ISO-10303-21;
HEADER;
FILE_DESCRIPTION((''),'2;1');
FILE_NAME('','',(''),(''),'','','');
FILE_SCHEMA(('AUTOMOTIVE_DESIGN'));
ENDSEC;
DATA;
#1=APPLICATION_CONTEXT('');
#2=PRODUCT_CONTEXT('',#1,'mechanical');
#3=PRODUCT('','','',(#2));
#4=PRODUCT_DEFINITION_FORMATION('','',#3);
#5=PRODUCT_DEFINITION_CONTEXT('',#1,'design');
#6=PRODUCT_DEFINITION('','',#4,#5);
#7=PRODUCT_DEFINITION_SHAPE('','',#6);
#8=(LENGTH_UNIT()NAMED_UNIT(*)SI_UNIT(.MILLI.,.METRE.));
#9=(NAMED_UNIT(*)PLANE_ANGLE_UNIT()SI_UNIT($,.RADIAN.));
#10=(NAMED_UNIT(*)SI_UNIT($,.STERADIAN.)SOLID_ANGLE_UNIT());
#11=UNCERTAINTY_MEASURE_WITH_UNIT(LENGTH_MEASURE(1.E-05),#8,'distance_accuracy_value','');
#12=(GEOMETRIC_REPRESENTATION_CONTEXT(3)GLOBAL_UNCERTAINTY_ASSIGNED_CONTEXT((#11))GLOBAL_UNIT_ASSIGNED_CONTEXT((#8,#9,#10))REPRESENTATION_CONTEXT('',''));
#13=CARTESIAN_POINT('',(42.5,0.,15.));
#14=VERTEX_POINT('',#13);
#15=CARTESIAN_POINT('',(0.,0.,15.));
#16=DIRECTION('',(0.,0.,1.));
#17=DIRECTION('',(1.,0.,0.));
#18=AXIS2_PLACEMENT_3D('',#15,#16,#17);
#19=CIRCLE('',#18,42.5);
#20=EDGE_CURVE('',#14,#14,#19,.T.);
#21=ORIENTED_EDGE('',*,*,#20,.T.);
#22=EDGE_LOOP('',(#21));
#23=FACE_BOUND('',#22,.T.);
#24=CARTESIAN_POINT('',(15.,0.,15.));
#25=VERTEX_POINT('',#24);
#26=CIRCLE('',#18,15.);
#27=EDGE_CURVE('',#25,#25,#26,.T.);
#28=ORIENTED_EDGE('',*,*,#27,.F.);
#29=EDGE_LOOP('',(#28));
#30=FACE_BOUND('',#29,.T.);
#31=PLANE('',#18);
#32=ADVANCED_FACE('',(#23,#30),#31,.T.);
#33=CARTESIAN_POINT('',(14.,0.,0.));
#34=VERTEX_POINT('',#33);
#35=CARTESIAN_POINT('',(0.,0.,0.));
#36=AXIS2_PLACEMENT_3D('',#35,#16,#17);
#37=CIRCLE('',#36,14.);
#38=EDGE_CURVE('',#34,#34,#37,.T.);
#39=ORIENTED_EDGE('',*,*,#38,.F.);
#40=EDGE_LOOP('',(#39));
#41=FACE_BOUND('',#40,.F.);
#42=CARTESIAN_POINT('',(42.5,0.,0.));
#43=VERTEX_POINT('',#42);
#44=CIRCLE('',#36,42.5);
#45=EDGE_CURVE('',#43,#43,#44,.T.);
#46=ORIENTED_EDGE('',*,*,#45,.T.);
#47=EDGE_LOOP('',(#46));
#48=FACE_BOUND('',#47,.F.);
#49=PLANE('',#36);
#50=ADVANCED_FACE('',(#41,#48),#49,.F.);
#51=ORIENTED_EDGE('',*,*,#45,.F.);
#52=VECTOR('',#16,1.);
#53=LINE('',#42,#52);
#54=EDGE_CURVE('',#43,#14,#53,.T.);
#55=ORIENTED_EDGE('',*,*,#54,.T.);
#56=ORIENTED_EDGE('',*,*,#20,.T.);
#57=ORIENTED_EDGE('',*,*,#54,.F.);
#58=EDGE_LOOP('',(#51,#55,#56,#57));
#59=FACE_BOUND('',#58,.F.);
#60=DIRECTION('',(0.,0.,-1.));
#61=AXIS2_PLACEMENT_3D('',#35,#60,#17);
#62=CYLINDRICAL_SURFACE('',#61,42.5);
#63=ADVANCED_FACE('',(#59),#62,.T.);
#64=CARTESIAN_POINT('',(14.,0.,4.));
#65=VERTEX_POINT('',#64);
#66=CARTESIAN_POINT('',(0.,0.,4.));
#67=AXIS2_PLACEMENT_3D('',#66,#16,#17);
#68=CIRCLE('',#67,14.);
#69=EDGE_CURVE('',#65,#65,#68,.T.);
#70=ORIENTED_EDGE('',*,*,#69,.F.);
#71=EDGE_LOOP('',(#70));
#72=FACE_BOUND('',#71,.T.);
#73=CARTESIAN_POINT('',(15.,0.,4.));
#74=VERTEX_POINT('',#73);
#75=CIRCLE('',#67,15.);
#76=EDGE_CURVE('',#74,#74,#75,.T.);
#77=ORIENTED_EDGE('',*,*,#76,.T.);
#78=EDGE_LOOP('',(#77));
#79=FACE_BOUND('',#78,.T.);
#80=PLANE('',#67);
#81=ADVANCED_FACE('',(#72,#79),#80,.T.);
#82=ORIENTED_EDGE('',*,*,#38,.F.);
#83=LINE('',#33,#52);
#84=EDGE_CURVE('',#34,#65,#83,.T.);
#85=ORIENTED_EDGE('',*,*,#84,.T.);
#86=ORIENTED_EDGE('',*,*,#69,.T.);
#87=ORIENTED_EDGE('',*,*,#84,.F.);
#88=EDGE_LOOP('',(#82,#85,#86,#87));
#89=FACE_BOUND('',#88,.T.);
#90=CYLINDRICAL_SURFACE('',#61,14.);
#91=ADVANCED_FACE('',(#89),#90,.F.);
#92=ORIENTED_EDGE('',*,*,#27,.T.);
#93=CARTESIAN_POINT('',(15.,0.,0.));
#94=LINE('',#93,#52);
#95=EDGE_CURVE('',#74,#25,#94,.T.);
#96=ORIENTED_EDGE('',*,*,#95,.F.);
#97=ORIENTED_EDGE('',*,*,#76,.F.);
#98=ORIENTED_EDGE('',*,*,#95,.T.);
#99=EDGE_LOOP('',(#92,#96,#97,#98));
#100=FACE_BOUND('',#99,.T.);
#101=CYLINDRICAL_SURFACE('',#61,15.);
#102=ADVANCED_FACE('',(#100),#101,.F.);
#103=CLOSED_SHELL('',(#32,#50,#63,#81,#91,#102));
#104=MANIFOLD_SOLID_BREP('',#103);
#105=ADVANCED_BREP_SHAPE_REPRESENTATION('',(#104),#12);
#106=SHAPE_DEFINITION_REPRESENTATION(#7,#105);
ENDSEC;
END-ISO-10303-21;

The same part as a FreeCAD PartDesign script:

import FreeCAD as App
import Part
import Sketcher

V = App.Vector

doc = App.newDocument("Part")
params = doc.addObject("Spreadsheet::Sheet", "Params")
for row, (alias, value) in enumerate([
    ("sketch1_diameter", "85 mm"),
    ("sketch1_diameter2", "30 mm"),
    ("pad1_length", "15 mm"),
    ("sketch2_diameter", "30 mm"),
    ("sketch2_diameter2", "28 mm"),
    ("pad2_length", "4 mm"),
], start=1):
    params.set(f"A{row}", alias)
    params.set(f"B{row}", "=" + value)
    params.setAlias(f"B{row}", alias)

body = doc.addObject("PartDesign::Body", "Body")

sketch1 = body.newObject("Sketcher::SketchObject", "Sketch")
sketch1.AttachmentSupport = (doc.getObject("XY_Plane"), [""])
sketch1.MapMode = "FlatFace"
sketch1.addGeometry([
    Part.Circle(V(0, 0, 0), V(0, 0, 1), 42),
    Part.Circle(V(0, 0, 0), V(0, 0, 1), 15),
], False)
sketch1.addConstraint([
    Sketcher.Constraint("Coincident", 0, 3, -1, 1),
    Sketcher.Constraint("Coincident", 1, 3, -1, 1),
    Sketcher.Constraint("Diameter", 0, 85.0),
    Sketcher.Constraint("Diameter", 1, 30.0),
])
sketch1.setExpression("Constraints[2]", "Params.sketch1_diameter")
sketch1.setExpression("Constraints[3]", "Params.sketch1_diameter2")
pad1 = body.newObject("PartDesign::Pad", "Pad")
pad1.Profile = sketch1
pad1.setExpression("Length", "Params.pad1_length")

sketch2 = body.newObject("Sketcher::SketchObject", "Sketch001")
sketch2.AttachmentSupport = (doc.getObject("XY_Plane"), [""])
sketch2.MapMode = "FlatFace"
sketch2.addGeometry([
    Part.Circle(V(0, 0, 0), V(0, 0, 1), 15),
    Part.Circle(V(0, 0, 0), V(0, 0, 1), 14),
], False)
sketch2.addConstraint([
    Sketcher.Constraint("Coincident", 0, 3, -1, 1),
    Sketcher.Constraint("Coincident", 1, 3, -1, 1),
    Sketcher.Constraint("Diameter", 0, 30.0),
    Sketcher.Constraint("Diameter", 1, 28.0),
])
sketch2.setExpression("Constraints[2]", "Params.sketch2_diameter")
sketch2.setExpression("Constraints[3]", "Params.sketch2_diameter2")
pad2 = body.newObject("PartDesign::Pad", "Pad001")
pad2.Profile = sketch2
pad2.setExpression("Length", "Params.pad2_length")

doc.recompute()
